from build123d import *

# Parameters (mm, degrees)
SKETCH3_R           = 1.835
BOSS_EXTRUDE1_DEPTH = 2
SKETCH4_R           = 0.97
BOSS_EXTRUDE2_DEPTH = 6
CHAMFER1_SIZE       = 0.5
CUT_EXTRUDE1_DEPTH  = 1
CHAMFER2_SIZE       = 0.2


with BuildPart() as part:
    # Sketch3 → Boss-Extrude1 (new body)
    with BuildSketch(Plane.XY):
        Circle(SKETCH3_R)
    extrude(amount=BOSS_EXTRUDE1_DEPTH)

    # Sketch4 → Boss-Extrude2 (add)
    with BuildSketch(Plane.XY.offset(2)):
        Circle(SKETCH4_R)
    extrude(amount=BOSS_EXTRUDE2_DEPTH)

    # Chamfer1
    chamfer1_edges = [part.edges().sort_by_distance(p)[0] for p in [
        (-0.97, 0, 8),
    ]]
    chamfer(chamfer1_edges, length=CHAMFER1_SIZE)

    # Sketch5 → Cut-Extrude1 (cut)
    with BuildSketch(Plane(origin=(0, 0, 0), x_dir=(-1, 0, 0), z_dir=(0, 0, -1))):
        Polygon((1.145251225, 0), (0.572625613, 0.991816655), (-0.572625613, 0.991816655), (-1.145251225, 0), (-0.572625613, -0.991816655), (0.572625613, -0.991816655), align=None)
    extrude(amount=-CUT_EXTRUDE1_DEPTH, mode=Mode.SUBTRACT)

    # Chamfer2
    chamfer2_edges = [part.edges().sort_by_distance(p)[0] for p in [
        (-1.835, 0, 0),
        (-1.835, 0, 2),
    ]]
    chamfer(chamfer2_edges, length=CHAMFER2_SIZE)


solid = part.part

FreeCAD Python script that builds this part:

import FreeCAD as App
import Part
import Sketcher
Q = App.Units.Quantity


def edges_at(feature, points):
    """Names of the edges that pass closest to the given points."""
    edges = feature.Shape.Edges
    near = lambda p: min(range(len(edges)), key=lambda i: edges[i].distToShape(Part.Vertex(*p))[0])
    return sorted({f"Edge{near(p) + 1}" for p in points})


def add_polygon(sketch, points):
    """Adds a closed chain of lines whose ends are joined by coincident constraints."""
    first, n = sketch.GeometryCount, len(points)
    for a, b in zip(points, points[1:] + points[:1]):
        sketch.addGeometry(Part.LineSegment(App.Vector(*a, 0), App.Vector(*b, 0)), False)
    for i in range(n):
        sketch.addConstraint(Sketcher.Constraint("Coincident", first + i, 2, first + (i + 1) % n, 1))

doc = App.newDocument("Part")
body = doc.addObject("PartDesign::Body", "Body")

# Sketch on XY plane
sketch1 = doc.addObject("Sketcher::SketchObject", "Sketch")
body.addObject(sketch1)
sketch1.AttachmentSupport = (doc.XY_Plane, [""])
sketch1.MapMode = "FlatFace"
sketch1.addGeometry(Part.Circle(App.Vector(0, 0, 0), App.Vector(0, 0, 1), 1.8), False)
sketch1.addConstraint(Sketcher.Constraint("Coincident", 0, 3, -1, 1))
sketch1.addConstraint(Sketcher.Constraint("Diameter", 0, 3.67))
pad1 = doc.addObject("PartDesign::Pad", "Pad")
body.addObject(pad1)
pad1.Profile = sketch1
pad1.Length = 2

# Sketch on XY plane
sketch2 = doc.addObject("Sketcher::SketchObject", "Sketch001")
body.addObject(sketch2)
sketch2.AttachmentSupport = (doc.XY_Plane, [""])
sketch2.MapMode = "FlatFace"
sketch2.AttachmentOffset = App.Placement(App.Vector(0, 0, 2), App.Rotation())
sketch2.addGeometry(Part.Circle(App.Vector(0, 0, 0), App.Vector(0, 0, 1), 1), False)
sketch2.addConstraint(Sketcher.Constraint("Coincident", 0, 3, -1, 1))
sketch2.addConstraint(Sketcher.Constraint("Diameter", 0, 1.94))
pad2 = doc.addObject("PartDesign::Pad", "Pad001")
body.addObject(pad2)
pad2.Profile = sketch2
pad2.Length = 6
doc.recompute()

chamfer = doc.addObject("PartDesign::Chamfer", "Chamfer")
body.addObject(chamfer)
chamfer.Base = (pad2, edges_at(pad2, [(-0.97, 0, 8)]))
chamfer.Size = 0.5

# Sketch on XY plane
sketch3 = doc.addObject("Sketcher::SketchObject", "Sketch002")
body.addObject(sketch3)
sketch3.AttachmentSupport = (doc.XY_Plane, [""])
sketch3.MapMode = "FlatFace"
add_polygon(sketch3, [(-1.1, 0), (-0.6, 1), (0.6, 1), (1.1, 0), (0.6, -1), (-0.6, -1)])  # lines 0-5
sketch3.addConstraint(Sketcher.Constraint("Horizontal", 1))
sketch3.addConstraint(Sketcher.Constraint("Horizontal", 4))
sketch3.addConstraint(Sketcher.Constraint("Symmetric", 0, 2, 3, 2, -1, 1))
sketch3.addConstraint(Sketcher.Constraint("Symmetric", 2, 2, 5, 2, -1, 1))
sketch3.addConstraint(Sketcher.Constraint("PointOnObject", 2, 2, -1))
sketch3.addConstraint(Sketcher.Constraint("Parallel", 2, 5))
sketch3.addConstraint(Sketcher.Constraint("Vertical", 1, 2, 3, 2))
sketch3.addConstraint(Sketcher.Constraint("Angle", 0, Q("60 deg")))
sketch3.addConstraint(Sketcher.Constraint("DistanceX", 1, 1, 1, 2, 1.145251))
sketch3.addConstraint(Sketcher.Constraint("Distance", 0, 1.145251))
pocket1 = doc.addObject("PartDesign::Pocket", "Pocket")
body.addObject(pocket1)
pocket1.Profile = sketch3
pocket1.Length = 1
pocket1.Reversed = True
doc.recompute()

chamfer2 = doc.addObject("PartDesign::Chamfer", "Chamfer001")
body.addObject(chamfer2)
chamfer2.Base = (pocket1, edges_at(pocket1, [(-1.835, 0, 0), (-1.835, 0, 2)]))
chamfer2.Size = 0.2

doc.recompute()
